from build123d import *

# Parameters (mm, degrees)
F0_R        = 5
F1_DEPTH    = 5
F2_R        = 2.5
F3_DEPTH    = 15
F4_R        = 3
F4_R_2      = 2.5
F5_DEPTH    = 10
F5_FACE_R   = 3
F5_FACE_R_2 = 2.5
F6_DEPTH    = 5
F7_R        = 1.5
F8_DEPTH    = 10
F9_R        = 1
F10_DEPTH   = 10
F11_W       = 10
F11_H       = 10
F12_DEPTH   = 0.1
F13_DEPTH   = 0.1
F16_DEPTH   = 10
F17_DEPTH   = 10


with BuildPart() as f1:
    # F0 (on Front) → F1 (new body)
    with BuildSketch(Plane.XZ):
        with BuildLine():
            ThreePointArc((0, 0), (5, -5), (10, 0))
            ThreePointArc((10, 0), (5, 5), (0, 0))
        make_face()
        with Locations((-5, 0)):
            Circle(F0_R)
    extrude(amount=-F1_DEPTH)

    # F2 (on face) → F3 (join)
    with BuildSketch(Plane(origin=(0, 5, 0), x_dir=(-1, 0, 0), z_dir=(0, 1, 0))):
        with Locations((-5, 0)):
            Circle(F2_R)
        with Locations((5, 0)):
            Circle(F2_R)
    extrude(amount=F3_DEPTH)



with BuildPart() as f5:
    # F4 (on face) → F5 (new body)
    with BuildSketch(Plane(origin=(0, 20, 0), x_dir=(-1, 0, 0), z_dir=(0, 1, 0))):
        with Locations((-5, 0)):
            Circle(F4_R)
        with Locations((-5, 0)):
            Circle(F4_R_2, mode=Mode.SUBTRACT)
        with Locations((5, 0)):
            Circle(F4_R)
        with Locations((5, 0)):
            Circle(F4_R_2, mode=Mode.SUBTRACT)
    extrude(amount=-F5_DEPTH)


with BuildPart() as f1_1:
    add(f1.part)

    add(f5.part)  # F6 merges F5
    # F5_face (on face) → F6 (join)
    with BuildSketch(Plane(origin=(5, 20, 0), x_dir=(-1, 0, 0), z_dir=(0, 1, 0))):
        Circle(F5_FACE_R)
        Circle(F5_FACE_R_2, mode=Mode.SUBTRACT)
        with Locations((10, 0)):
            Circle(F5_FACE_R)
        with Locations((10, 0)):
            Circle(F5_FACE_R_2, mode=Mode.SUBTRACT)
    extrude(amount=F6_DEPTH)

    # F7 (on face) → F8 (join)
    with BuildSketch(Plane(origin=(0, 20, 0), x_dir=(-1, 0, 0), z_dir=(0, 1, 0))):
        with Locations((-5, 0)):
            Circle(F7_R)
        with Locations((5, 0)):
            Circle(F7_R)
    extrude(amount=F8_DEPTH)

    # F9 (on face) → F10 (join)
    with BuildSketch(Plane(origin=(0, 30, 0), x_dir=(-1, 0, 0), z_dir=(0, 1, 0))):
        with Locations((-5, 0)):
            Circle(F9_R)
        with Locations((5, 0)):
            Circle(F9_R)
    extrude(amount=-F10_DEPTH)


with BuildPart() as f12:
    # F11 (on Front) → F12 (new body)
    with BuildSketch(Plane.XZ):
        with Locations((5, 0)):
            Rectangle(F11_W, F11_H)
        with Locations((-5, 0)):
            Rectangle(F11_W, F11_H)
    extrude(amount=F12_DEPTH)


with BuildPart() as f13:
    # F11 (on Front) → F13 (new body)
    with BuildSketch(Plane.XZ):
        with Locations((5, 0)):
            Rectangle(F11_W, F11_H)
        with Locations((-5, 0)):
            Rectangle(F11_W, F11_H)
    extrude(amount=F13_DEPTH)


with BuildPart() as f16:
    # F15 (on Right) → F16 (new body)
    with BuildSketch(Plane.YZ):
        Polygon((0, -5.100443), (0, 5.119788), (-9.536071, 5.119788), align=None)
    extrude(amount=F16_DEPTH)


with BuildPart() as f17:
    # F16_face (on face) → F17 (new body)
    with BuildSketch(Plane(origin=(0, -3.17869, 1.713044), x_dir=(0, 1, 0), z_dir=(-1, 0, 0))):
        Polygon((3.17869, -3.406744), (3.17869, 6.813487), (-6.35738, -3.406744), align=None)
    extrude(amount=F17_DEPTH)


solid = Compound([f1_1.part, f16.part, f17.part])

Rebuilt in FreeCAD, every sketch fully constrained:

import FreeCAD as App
import Part
import Sketcher

V = App.Vector
Q = App.Units.Quantity

doc = App.newDocument("Part")
body = doc.addObject("PartDesign::Body", "Body")
body.AllowCompound = True

# Sketch on XZ plane
sketch1 = body.newObject("Sketcher::SketchObject", "Sketch")
sketch1.AttachmentSupport = (doc.getObject("XZ_Plane"), [""])
sketch1.MapMode = "FlatFace"
sketch1.addGeometry([
    Part.Circle(V(5, 0, 0), V(0, 0, 1), 5),
    Part.Circle(V(-5, 0, 0), V(0, 0, 1), 5),
], False)
sketch1.addConstraint([
    Sketcher.Constraint("Equal", 0, 1),
    Sketcher.Constraint("Symmetric", 0, 3, 1, 3, -1, 1),
    Sketcher.Constraint("PointOnObject", 0, 3, -1),
    Sketcher.Constraint("Diameter", 0, Q("10 mm")),
    Sketcher.Constraint("DistanceX", -1, 1, 0, 3, Q("5 mm")),
])
pad1 = body.newObject("PartDesign::Pad", "Pad")
pad1.Profile = sketch1
pad1.Length = 5
pad1.Reversed = True

# Sketch on XZ plane
sketch2 = body.newObject("Sketcher::SketchObject", "Sketch001")
sketch2.AttachmentSupport = (doc.getObject("XZ_Plane"), [""])
sketch2.MapMode = "FlatFace"
sketch2.AttachmentOffset = App.Placement(V(0, 0, -5), App.Rotation())
sketch2.addGeometry([
    Part.Circle(V(5, 0, 0), V(0, 0, 1), 2.5),
    Part.Circle(V(-5, 0, 0), V(0, 0, 1), 2.5),
], False)
sketch2.addConstraint([
    Sketcher.Constraint("Equal", 0, 1),
    Sketcher.Constraint("Symmetric", 0, 3, 1, 3, -1, 1),
    Sketcher.Constraint("PointOnObject", 0, 3, -1),
    Sketcher.Constraint("Diameter", 0, Q("5 mm")),
    Sketcher.Constraint("DistanceX", -1, 1, 0, 3, Q("5 mm")),
])
pad2 = body.newObject("PartDesign::Pad", "Pad001")
pad2.Profile = sketch2
pad2.Length = 15
pad2.Reversed = True
body2 = doc.addObject("PartDesign::Body", "Body001")
body2.AllowCompound = True

# Sketch on XZ plane
sketch3 = body2.newObject("Sketcher::SketchObject", "Sketch002")
sketch3.AttachmentSupport = (doc.getObject("XZ_Plane001"), [""])
sketch3.MapMode = "FlatFace"
sketch3.AttachmentOffset = App.Placement(V(0, 0, -20), App.Rotation())
sketch3.addGeometry([
    Part.Circle(V(5, 0, 0), V(0, 0, 1), 3),
    Part.Circle(V(5, 0, 0), V(0, 0, 1), 2.5),
    Part.Circle(V(-5, 0, 0), V(0, 0, 1), 3),
    Part.Circle(V(-5, 0, 0), V(0, 0, 1), 2.5),
], False)
sketch3.addConstraint([
    Sketcher.Constraint("Coincident", 1, 3, 0, 3),
    Sketcher.Constraint("Coincident", 3, 3, 2, 3),
    Sketcher.Constraint("Equal", 0, 2),
    Sketcher.Constraint("Equal", 1, 3),
    Sketcher.Constraint("Symmetric", 0, 3, 2, 3, -1, 1),
    Sketcher.Constraint("PointOnObject", 0, 3, -1),
    Sketcher.Constraint("Diameter", 0, Q("6 mm")),
    Sketcher.Constraint("Diameter", 1, Q("5 mm")),
    Sketcher.Constraint("DistanceX", -1, 1, 0, 3, Q("5 mm")),
])
pad3 = body2.newObject("PartDesign::Pad", "Pad002")
pad3.Profile = sketch3
pad3.Length = 10
body.AllowCompound = True
doc.recompute()

boolean = body.newObject("PartDesign::Boolean", "Boolean")
boolean.Type = "Fuse"
boolean.addObjects([body2])

# Sketch on XZ plane
sketch4 = body.newObject("Sketcher::SketchObject", "Sketch003")
sketch4.AttachmentSupport = (doc.getObject("XZ_Plane"), [""])
sketch4.MapMode = "FlatFace"
sketch4.AttachmentOffset = App.Placement(V(0, 0, -20), App.Rotation())
sketch4.addGeometry([
    Part.Circle(V(5, 0, 0), V(0, 0, 1), 3),
    Part.Circle(V(5, 0, 0), V(0, 0, 1), 2.5),
    Part.Circle(V(-5, 0, 0), V(0, 0, 1), 3),
    Part.Circle(V(-5, 0, 0), V(0, 0, 1), 2.5),
], False)
sketch4.addConstraint([
    Sketcher.Constraint("Coincident", 1, 3, 0, 3),
    Sketcher.Constraint("Coincident", 3, 3, 2, 3),
    Sketcher.Constraint("Equal", 0, 2),
    Sketcher.Constraint("Equal", 1, 3),
    Sketcher.Constraint("Symmetric", 0, 3, 2, 3, -1, 1),
    Sketcher.Constraint("PointOnObject", 0, 3, -1),
    Sketcher.Constraint("Diameter", 0, Q("6 mm")),
    Sketcher.Constraint("Diameter", 1, Q("5 mm")),
    Sketcher.Constraint("DistanceX", -1, 1, 0, 3, Q("5 mm")),
])
pad4 = body.newObject("PartDesign::Pad", "Pad003")
pad4.Profile = sketch4
pad4.Length = 5
pad4.Reversed = True

# Sketch on XZ plane
sketch5 = body.newObject("Sketcher::SketchObject", "Sketch004")
sketch5.AttachmentSupport = (doc.getObject("XZ_Plane"), [""])
sketch5.MapMode = "FlatFace"
sketch5.AttachmentOffset = App.Placement(V(0, 0, -20), App.Rotation())
sketch5.addGeometry([
    Part.Circle(V(5, 0, 0), V(0, 0, 1), 1.5),
    Part.Circle(V(-5, 0, 0), V(0, 0, 1), 1.5),
], False)
sketch5.addConstraint([
    Sketcher.Constraint("Equal", 0, 1),
    Sketcher.Constraint("Symmetric", 0, 3, 1, 3, -1, 1),
    Sketcher.Constraint("PointOnObject", 0, 3, -1),
    Sketcher.Constraint("Diameter", 0, Q("3 mm")),
    Sketcher.Constraint("DistanceX", -1, 1, 0, 3, Q("5 mm")),
])
pad5 = body.newObject("PartDesign::Pad", "Pad004")
pad5.Profile = sketch5
pad5.Length = 10
pad5.Reversed = True

# Sketch on XZ plane
sketch6 = body.newObject("Sketcher::SketchObject", "Sketch005")
sketch6.AttachmentSupport = (doc.getObject("XZ_Plane"), [""])
sketch6.MapMode = "FlatFace"
sketch6.AttachmentOffset = App.Placement(V(0, 0, -30), App.Rotation())
sketch6.addGeometry([
    Part.Circle(V(5, 0, 0), V(0, 0, 1), 1),
    Part.Circle(V(-5, 0, 0), V(0, 0, 1), 1),
], False)
sketch6.addConstraint([
    Sketcher.Constraint("Equal", 0, 1),
    Sketcher.Constraint("Symmetric", 0, 3, 1, 3, -1, 1),
    Sketcher.Constraint("PointOnObject", 0, 3, -1),
    Sketcher.Constraint("Diameter", 0, Q("2 mm")),
    Sketcher.Constraint("DistanceX", -1, 1, 0, 3, Q("5 mm")),
])
pad6 = body.newObject("PartDesign::Pad", "Pad005")
pad6.Profile = sketch6
pad6.Length = 10
body3 = doc.addObject("PartDesign::Body", "Body002")

# Sketch on XZ plane
sketch7 = body3.newObject("Sketcher::SketchObject", "Sketch006")
sketch7.AttachmentSupport = (doc.getObject("XZ_Plane002"), [""])
sketch7.MapMode = "FlatFace"
sketch7.addGeometry([
    Part.LineSegment(V(10, -5, 0), V(10, 5, 0)),
    Part.LineSegment(V(10, 5, 0), V(-10, 5, 0)),
    Part.LineSegment(V(-10, 5, 0), V(-10, -5, 0)),
    Part.LineSegment(V(-10, -5, 0), V(10, -5, 0)),
], False)
sketch7.addConstraint([
    Sketcher.Constraint("Coincident", 0, 2, 1, 1),
    Sketcher.Constraint("Coincident", 1, 2, 2, 1),
    Sketcher.Constraint("Coincident", 2, 2, 3, 1),
    Sketcher.Constraint("Coincident", 3, 2, 0, 1),
    Sketcher.Constraint("Vertical", 0),
    Sketcher.Constraint("Horizontal", 1),
    Sketcher.Constraint("Vertical", 2),
    Sketcher.Constraint("Horizontal", 3),
    Sketcher.Constraint("Symmetric", 0, 2, 2, 2, -1, 1),
    Sketcher.Constraint("DistanceX", 1, 2, 1, 1, Q("20 mm")),
    Sketcher.Constraint("DistanceY", 0, 1, 0, 2, Q("10 mm")),
])
pad7 = body3.newObject("PartDesign::Pad", "Pad006")
pad7.Profile = sketch7
pad7.Length = 0.1
body4 = doc.addObject("PartDesign::Body", "Body003")

# Sketch on XZ plane
sketch8 = body4.newObject("Sketcher::SketchObject", "Sketch007")
sketch8.AttachmentSupport = (doc.getObject("XZ_Plane003"), [""])
sketch8.MapMode = "FlatFace"
sketch8.addGeometry([
    Part.LineSegment(V(10, -5, 0), V(10, 5, 0)),
    Part.LineSegment(V(10, 5, 0), V(-10, 5, 0)),
    Part.LineSegment(V(-10, 5, 0), V(-10, -5, 0)),
    Part.LineSegment(V(-10, -5, 0), V(10, -5, 0)),
], False)
sketch8.addConstraint([
    Sketcher.Constraint("Coincident", 0, 2, 1, 1),
    Sketcher.Constraint("Coincident", 1, 2, 2, 1),
    Sketcher.Constraint("Coincident", 2, 2, 3, 1),
    Sketcher.Constraint("Coincident", 3, 2, 0, 1),
    Sketcher.Constraint("Vertical", 0),
    Sketcher.Constraint("Horizontal", 1),
    Sketcher.Constraint("Vertical", 2),
    Sketcher.Constraint("Horizontal", 3),
    Sketcher.Constraint("Symmetric", 0, 2, 2, 2, -1, 1),
    Sketcher.Constraint("DistanceX", 1, 2, 1, 1, Q("20 mm")),
    Sketcher.Constraint("DistanceY", 0, 1, 0, 2, Q("10 mm")),
])
pad8 = body4.newObject("PartDesign::Pad", "Pad007")
pad8.Profile = sketch8
pad8.Length = 0.1
body5 = doc.addObject("PartDesign::Body", "Body004")

# Sketch on YZ plane
sketch9 = body5.newObject("Sketcher::SketchObject", "Sketch008")
sketch9.AttachmentSupport = (doc.getObject("YZ_Plane004"), [""])
sketch9.MapMode = "FlatFace"
sketch9.addGeometry([
    Part.LineSegment(V(0, -5.100443, 0), V(0, 5.119788, 0)),
    Part.LineSegment(V(0, 5.119788, 0), V(-9.536071, 5.119788, 0)),
    Part.LineSegment(V(-9.536071, 5.119788, 0), V(0, -5.100443, 0)),
], False)
sketch9.addConstraint([
    Sketcher.Constraint("Coincident", 0, 2, 1, 1),
    Sketcher.Constraint("Coincident", 1, 2, 2, 1),
    Sketcher.Constraint("Coincident", 2, 2, 0, 1),
    Sketcher.Constraint("Vertical", 0),
    Sketcher.Constraint("Horizontal", 1),
    Sketcher.Constraint("PointOnObject", 0, 2, -2),
    Sketcher.Constraint("DistanceX", 1, 2, 1, 1, Q("9.536071 mm")),
    Sketcher.Constraint("DistanceY", 0, 1, 0, 2, Q("10.220231 mm")),
    Sketcher.Constraint("DistanceY", -1, 1, 0, 2, Q("5.119788 mm")),
])
pad9 = body5.newObject("PartDesign::Pad", "Pad008")
pad9.Profile = sketch9
pad9.Length = 10
body6 = doc.addObject("PartDesign::Body", "Body005")

# Sketch on YZ plane
sketch10 = body6.newObject("Sketcher::SketchObject", "Sketch009")
sketch10.AttachmentSupport = (doc.getObject("YZ_Plane005"), [""])
sketch10.MapMode = "FlatFace"
sketch10.addGeometry([
    Part.LineSegment(V(0, 5.119788, 0), V(0, -5.100443, 0)),
    Part.LineSegment(V(0, -5.100443, 0), V(-9.53607, 5.119788, 0)),
    Part.LineSegment(V(-9.53607, 5.119788, 0), V(0, 5.119788, 0)),
], False)
sketch10.addConstraint([
    Sketcher.Constraint("Coincident", 0, 2, 1, 1),
    Sketcher.Constraint("Coincident", 1, 2, 2, 1),
    Sketcher.Constraint("Coincident", 2, 2, 0, 1),
    Sketcher.Constraint("Vertical", 0),
    Sketcher.Constraint("Horizontal", 2),
    Sketcher.Constraint("PointOnObject", 0, 2, -2),
    Sketcher.Constraint("DistanceX", 2, 1, 2, 2, Q("9.53607 mm")),
    Sketcher.Constraint("DistanceY", 0, 2, 0, 1, Q("10.220231 mm")),
    Sketcher.Constraint("DistanceY", 0, 2, -1, 1, Q("5.100443 mm")),
])
pad10 = body6.newObject("PartDesign::Pad", "Pad009")
pad10.Profile = sketch10
pad10.Length = 10
pad10.Reversed = True
body3.Visibility = False
body4.Visibility = False

doc.recompute()
